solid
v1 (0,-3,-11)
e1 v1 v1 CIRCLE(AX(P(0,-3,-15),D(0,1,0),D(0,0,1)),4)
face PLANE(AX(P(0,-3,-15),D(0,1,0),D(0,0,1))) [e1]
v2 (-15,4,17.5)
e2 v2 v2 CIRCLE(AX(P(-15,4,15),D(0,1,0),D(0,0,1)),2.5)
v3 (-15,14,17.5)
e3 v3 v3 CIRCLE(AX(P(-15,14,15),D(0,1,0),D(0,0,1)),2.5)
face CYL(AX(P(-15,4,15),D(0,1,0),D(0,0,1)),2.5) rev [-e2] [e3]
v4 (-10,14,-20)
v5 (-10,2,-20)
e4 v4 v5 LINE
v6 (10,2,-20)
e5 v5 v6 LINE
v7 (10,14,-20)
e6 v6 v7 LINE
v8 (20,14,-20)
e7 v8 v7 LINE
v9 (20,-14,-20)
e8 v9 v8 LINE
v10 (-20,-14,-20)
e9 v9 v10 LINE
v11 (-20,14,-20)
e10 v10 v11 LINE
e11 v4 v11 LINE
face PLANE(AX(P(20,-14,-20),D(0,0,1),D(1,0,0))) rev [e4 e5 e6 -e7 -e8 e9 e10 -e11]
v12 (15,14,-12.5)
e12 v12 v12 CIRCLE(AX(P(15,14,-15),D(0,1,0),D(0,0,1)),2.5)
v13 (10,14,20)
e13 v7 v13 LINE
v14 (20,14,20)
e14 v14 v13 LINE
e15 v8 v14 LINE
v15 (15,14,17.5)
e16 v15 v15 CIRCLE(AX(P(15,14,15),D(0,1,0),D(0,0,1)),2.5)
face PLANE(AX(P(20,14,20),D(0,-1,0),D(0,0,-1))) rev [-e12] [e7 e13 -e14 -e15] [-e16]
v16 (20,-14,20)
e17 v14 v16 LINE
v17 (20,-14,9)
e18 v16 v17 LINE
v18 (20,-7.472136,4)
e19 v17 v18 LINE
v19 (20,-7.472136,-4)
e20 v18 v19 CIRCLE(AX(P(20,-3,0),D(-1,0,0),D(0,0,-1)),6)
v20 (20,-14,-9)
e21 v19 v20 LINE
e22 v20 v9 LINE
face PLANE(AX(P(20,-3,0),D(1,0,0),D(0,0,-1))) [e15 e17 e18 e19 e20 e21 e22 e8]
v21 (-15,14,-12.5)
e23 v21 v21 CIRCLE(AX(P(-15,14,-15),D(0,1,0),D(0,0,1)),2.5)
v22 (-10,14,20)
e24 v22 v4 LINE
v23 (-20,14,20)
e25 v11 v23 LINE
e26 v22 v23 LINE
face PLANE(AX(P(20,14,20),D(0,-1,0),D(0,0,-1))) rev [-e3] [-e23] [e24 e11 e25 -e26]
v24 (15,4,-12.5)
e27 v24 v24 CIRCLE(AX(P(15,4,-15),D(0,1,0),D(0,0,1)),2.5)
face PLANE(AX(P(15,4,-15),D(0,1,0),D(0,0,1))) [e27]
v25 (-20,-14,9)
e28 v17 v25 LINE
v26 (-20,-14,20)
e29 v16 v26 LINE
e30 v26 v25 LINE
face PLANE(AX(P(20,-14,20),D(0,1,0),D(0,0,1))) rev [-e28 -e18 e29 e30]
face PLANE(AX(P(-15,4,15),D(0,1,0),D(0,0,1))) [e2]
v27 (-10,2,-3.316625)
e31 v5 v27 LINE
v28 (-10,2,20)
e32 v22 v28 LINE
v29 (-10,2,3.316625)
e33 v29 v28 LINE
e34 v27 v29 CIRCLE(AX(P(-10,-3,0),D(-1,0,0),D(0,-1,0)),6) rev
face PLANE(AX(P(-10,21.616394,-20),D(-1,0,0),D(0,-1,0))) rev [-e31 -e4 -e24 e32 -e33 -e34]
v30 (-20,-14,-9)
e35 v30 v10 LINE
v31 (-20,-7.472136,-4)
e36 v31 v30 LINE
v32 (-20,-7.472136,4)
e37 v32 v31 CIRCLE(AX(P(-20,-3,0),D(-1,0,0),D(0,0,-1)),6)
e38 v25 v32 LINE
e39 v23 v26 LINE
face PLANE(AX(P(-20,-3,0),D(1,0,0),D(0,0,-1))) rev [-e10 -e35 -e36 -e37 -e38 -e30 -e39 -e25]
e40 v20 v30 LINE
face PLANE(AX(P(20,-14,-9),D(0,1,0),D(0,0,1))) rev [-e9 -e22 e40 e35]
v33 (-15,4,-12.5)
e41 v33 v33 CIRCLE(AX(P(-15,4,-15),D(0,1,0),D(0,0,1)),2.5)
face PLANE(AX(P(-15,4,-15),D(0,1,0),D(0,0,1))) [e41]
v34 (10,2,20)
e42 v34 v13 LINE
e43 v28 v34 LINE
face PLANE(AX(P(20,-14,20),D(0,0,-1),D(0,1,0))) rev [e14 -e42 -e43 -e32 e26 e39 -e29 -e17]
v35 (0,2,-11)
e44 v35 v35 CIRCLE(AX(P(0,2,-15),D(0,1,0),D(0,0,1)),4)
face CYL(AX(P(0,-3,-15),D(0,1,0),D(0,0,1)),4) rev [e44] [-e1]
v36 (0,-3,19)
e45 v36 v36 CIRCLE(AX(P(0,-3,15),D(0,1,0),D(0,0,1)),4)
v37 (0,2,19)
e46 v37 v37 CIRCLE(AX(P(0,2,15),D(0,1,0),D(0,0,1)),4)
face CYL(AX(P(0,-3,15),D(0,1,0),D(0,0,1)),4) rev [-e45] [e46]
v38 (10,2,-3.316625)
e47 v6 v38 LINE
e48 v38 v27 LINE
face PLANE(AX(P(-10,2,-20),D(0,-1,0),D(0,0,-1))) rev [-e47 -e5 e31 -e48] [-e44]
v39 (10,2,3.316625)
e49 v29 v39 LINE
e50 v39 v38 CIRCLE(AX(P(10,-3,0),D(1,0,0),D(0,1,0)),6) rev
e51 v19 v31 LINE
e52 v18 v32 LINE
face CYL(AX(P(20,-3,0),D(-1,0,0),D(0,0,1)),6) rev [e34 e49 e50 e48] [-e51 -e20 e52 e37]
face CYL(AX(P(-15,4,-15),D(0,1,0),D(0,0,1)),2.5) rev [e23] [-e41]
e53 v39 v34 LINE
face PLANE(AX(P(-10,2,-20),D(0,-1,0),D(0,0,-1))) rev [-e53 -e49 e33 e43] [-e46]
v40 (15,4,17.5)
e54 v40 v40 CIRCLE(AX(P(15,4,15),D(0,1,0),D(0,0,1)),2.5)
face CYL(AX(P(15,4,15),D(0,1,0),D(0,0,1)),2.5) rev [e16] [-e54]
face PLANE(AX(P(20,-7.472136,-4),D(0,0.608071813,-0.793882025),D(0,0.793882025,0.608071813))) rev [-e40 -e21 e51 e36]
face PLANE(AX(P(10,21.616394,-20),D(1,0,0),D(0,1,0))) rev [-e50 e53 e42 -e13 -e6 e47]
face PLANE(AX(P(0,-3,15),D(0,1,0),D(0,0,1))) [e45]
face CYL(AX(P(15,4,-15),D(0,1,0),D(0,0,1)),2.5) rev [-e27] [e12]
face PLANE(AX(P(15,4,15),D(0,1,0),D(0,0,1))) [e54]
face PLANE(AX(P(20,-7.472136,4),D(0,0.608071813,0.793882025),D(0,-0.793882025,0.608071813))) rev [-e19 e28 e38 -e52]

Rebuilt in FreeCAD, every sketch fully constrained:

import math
import FreeCAD as App
import Part
import Sketcher
Q = App.Units.Quantity

doc = App.newDocument("Part")
body = doc.addObject("PartDesign::Body", "Body")

sketch1 = body.newObject("Sketcher::SketchObject", "Sketch")
sketch1.AttachmentSupport = (doc.getObject("YZ_Plane"), [""])
sketch1.MapMode = "FlatFace"
sketch1.addGeometry([
    Part.LineSegment(App.Vector(-14, 9, 0), App.Vector(-7, 4, 0)),
    Part.ArcOfCircle(Part.Circle(App.Vector(-3, 0, 0), App.Vector(0, 0, 1), 6), math.radians(-138), math.radians(138)),
    Part.LineSegment(App.Vector(-7, -4, 0), App.Vector(-14, -9, 0)),
    Part.LineSegment(App.Vector(-14, -9, 0), App.Vector(-14, -20, 0)),
    Part.LineSegment(App.Vector(-14, -20, 0), App.Vector(14, -20, 0)),
    Part.LineSegment(App.Vector(14, -20, 0), App.Vector(14, 20, 0)),
    Part.LineSegment(App.Vector(14, 20, 0), App.Vector(-14, 20, 0)),
    Part.LineSegment(App.Vector(-14, 20, 0), App.Vector(-14, 9, 0)),
], False)
sketch1.addConstraint([
    Sketcher.Constraint("Coincident", 0, 2, 1, 2),
    Sketcher.Constraint("Coincident", 1, 1, 2, 1),
    Sketcher.Constraint("Coincident", 2, 2, 3, 1),
    Sketcher.Constraint("Coincident", 3, 2, 4, 1),
    Sketcher.Constraint("Coincident", 4, 2, 5, 1),
    Sketcher.Constraint("Coincident", 5, 2, 6, 1),
    Sketcher.Constraint("Coincident", 6, 2, 7, 1),
    Sketcher.Constraint("Coincident", 7, 2, 0, 1),
    Sketcher.Constraint("Vertical", 3),
    Sketcher.Constraint("Horizontal", 4),
    Sketcher.Constraint("Vertical", 5),
    Sketcher.Constraint("Horizontal", 6),
    Sketcher.Constraint("Vertical", 7),
    Sketcher.Constraint("Symmetric", 3, 2, 5, 2, -1, 1),
    Sketcher.Constraint("Symmetric", 0, 2, 1, 1, -1),
    Sketcher.Constraint("Symmetric", 2, 2, 7, 2, -1),
    Sketcher.Constraint("Radius", 1, Q("6 mm")),
    Sketcher.Constraint("DistanceX", 4, 1, 4, 2, Q("28 mm")),
    Sketcher.Constraint("DistanceY", 3, 2, 3, 1, Q("11 mm")),
    Sketcher.Constraint("DistanceY", 5, 1, 5, 2, Q("40 mm")),
    Sketcher.Constraint("DistanceX", 1, 3, -1, 1, Q("3 mm")),
    Sketcher.Constraint("DistanceY", -1, 1, 0, 2, Q("4 mm")),
])
pad1 = body.newObject("PartDesign::Pad", "Pad")
pad1.Profile = sketch1
pad1.Length = 40
pad1.Midplane = True

sketch2 = body.newObject("Sketcher::SketchObject", "Sketch001")
sketch2.AttachmentSupport = (doc.getObject("XY_Plane"), [""])
sketch2.MapMode = "FlatFace"
sketch2.addGeometry([
    Part.LineSegment(App.Vector(-10, 22, 0), App.Vector(-10, 2, 0)),
    Part.LineSegment(App.Vector(-10, 2, 0), App.Vector(10, 2, 0)),
    Part.LineSegment(App.Vector(10, 2, 0), App.Vector(10, 22, 0)),
    Part.LineSegment(App.Vector(10, 22, 0), App.Vector(-10, 22, 0)),
], False)
sketch2.addConstraint([
    Sketcher.Constraint("Coincident", 0, 2, 1, 1),
    Sketcher.Constraint("Coincident", 1, 2, 2, 1),
    Sketcher.Constraint("Coincident", 2, 2, 3, 1),
    Sketcher.Constraint("Coincident", 3, 2, 0, 1),
    Sketcher.Constraint("Vertical", 0),
    Sketcher.Constraint("Horizontal", 1),
    Sketcher.Constraint("Vertical", 2),
    Sketcher.Constraint("Horizontal", 3),
    Sketcher.Constraint("DistanceX", 1, 1, 1, 2, Q("20 mm")),
    Sketcher.Constraint("DistanceX", 0, 2, -1, 1, Q("10 mm")),
    Sketcher.Constraint("DistanceY", -1, 1, 0, 2, Q("2 mm")),
    Sketcher.Constraint("DistanceY", 0, 2, 0, 1, Q("19.616394 mm")),
])
pocket1 = body.newObject("PartDesign::Pocket", "Pocket")
pocket1.Profile = sketch2
pocket1.Type = "ThroughAll"
pocket1.Midplane = True

sketch3 = body.newObject("Sketcher::SketchObject", "Sketch002")
sketch3.AttachmentSupport = (doc.getObject("XZ_Plane"), [""])
sketch3.MapMode = "FlatFace"
sketch3.AttachmentOffset = App.Placement(App.Vector(0, 0, -2), App.Rotation())
sketch3.addGeometry([
    Part.Circle(App.Vector(0, -15, 0), App.Vector(0, 0, 1), 4),
    Part.Circle(App.Vector(0, 15, 0), App.Vector(0, 0, 1), 4),
], False)
sketch3.addConstraint([
    Sketcher.Constraint("Equal", 0, 1),
    Sketcher.Constraint("Symmetric", 0, 3, 1, 3, -1, 1),
    Sketcher.Constraint("PointOnObject", 0, 3, -2),
    Sketcher.Constraint("Diameter", 0, Q("8 mm")),
    Sketcher.Constraint("DistanceY", 0, 3, -1, 1, Q("15 mm")),
])
pocket2 = body.newObject("PartDesign::Pocket", "Pocket001")
pocket2.Profile = sketch3
pocket2.Length = 5
pocket2.Reversed = True

sketch4 = body.newObject("Sketcher::SketchObject", "Sketch003")
sketch4.AttachmentSupport = (doc.getObject("XZ_Plane"), [""])
sketch4.MapMode = "FlatFace"
sketch4.AttachmentOffset = App.Placement(App.Vector(0, 0, -14), App.Rotation())
sketch4.addGeometry([
    Part.Circle(App.Vector(-15, -15, 0), App.Vector(0, 0, 1), 2.5),
    Part.Circle(App.Vector(-15, 15, 0), App.Vector(0, 0, 1), 2.5),
    Part.Circle(App.Vector(15, 15, 0), App.Vector(0, 0, 1), 2.5),
    Part.Circle(App.Vector(15, -15, 0), App.Vector(0, 0, 1), 2.5),
], False)
sketch4.addConstraint([
    Sketcher.Constraint("Equal", 0, 1),
    Sketcher.Constraint("Equal", 1, 2),
    Sketcher.Constraint("Equal", 2, 3),
    Sketcher.Constraint("Symmetric", 0, 3, 2, 3, -1, 1),
    Sketcher.Constraint("Symmetric", 1, 3, 3, 3, -1, 1),
    Sketcher.Constraint("Symmetric", 1, 3, 2, 3, -2),
    Sketcher.Constraint("Diameter", 0, Q("5 mm")),
    Sketcher.Constraint("DistanceX", 0, 3, -1, 1, Q("15 mm")),
    Sketcher.Constraint("DistanceY", 0, 3, -1, 1, Q("15 mm")),
])
pocket3 = body.newObject("PartDesign::Pocket", "Pocket002")
pocket3.Profile = sketch4
pocket3.Length = 10
pocket3.Reversed = True

doc.recompute()
